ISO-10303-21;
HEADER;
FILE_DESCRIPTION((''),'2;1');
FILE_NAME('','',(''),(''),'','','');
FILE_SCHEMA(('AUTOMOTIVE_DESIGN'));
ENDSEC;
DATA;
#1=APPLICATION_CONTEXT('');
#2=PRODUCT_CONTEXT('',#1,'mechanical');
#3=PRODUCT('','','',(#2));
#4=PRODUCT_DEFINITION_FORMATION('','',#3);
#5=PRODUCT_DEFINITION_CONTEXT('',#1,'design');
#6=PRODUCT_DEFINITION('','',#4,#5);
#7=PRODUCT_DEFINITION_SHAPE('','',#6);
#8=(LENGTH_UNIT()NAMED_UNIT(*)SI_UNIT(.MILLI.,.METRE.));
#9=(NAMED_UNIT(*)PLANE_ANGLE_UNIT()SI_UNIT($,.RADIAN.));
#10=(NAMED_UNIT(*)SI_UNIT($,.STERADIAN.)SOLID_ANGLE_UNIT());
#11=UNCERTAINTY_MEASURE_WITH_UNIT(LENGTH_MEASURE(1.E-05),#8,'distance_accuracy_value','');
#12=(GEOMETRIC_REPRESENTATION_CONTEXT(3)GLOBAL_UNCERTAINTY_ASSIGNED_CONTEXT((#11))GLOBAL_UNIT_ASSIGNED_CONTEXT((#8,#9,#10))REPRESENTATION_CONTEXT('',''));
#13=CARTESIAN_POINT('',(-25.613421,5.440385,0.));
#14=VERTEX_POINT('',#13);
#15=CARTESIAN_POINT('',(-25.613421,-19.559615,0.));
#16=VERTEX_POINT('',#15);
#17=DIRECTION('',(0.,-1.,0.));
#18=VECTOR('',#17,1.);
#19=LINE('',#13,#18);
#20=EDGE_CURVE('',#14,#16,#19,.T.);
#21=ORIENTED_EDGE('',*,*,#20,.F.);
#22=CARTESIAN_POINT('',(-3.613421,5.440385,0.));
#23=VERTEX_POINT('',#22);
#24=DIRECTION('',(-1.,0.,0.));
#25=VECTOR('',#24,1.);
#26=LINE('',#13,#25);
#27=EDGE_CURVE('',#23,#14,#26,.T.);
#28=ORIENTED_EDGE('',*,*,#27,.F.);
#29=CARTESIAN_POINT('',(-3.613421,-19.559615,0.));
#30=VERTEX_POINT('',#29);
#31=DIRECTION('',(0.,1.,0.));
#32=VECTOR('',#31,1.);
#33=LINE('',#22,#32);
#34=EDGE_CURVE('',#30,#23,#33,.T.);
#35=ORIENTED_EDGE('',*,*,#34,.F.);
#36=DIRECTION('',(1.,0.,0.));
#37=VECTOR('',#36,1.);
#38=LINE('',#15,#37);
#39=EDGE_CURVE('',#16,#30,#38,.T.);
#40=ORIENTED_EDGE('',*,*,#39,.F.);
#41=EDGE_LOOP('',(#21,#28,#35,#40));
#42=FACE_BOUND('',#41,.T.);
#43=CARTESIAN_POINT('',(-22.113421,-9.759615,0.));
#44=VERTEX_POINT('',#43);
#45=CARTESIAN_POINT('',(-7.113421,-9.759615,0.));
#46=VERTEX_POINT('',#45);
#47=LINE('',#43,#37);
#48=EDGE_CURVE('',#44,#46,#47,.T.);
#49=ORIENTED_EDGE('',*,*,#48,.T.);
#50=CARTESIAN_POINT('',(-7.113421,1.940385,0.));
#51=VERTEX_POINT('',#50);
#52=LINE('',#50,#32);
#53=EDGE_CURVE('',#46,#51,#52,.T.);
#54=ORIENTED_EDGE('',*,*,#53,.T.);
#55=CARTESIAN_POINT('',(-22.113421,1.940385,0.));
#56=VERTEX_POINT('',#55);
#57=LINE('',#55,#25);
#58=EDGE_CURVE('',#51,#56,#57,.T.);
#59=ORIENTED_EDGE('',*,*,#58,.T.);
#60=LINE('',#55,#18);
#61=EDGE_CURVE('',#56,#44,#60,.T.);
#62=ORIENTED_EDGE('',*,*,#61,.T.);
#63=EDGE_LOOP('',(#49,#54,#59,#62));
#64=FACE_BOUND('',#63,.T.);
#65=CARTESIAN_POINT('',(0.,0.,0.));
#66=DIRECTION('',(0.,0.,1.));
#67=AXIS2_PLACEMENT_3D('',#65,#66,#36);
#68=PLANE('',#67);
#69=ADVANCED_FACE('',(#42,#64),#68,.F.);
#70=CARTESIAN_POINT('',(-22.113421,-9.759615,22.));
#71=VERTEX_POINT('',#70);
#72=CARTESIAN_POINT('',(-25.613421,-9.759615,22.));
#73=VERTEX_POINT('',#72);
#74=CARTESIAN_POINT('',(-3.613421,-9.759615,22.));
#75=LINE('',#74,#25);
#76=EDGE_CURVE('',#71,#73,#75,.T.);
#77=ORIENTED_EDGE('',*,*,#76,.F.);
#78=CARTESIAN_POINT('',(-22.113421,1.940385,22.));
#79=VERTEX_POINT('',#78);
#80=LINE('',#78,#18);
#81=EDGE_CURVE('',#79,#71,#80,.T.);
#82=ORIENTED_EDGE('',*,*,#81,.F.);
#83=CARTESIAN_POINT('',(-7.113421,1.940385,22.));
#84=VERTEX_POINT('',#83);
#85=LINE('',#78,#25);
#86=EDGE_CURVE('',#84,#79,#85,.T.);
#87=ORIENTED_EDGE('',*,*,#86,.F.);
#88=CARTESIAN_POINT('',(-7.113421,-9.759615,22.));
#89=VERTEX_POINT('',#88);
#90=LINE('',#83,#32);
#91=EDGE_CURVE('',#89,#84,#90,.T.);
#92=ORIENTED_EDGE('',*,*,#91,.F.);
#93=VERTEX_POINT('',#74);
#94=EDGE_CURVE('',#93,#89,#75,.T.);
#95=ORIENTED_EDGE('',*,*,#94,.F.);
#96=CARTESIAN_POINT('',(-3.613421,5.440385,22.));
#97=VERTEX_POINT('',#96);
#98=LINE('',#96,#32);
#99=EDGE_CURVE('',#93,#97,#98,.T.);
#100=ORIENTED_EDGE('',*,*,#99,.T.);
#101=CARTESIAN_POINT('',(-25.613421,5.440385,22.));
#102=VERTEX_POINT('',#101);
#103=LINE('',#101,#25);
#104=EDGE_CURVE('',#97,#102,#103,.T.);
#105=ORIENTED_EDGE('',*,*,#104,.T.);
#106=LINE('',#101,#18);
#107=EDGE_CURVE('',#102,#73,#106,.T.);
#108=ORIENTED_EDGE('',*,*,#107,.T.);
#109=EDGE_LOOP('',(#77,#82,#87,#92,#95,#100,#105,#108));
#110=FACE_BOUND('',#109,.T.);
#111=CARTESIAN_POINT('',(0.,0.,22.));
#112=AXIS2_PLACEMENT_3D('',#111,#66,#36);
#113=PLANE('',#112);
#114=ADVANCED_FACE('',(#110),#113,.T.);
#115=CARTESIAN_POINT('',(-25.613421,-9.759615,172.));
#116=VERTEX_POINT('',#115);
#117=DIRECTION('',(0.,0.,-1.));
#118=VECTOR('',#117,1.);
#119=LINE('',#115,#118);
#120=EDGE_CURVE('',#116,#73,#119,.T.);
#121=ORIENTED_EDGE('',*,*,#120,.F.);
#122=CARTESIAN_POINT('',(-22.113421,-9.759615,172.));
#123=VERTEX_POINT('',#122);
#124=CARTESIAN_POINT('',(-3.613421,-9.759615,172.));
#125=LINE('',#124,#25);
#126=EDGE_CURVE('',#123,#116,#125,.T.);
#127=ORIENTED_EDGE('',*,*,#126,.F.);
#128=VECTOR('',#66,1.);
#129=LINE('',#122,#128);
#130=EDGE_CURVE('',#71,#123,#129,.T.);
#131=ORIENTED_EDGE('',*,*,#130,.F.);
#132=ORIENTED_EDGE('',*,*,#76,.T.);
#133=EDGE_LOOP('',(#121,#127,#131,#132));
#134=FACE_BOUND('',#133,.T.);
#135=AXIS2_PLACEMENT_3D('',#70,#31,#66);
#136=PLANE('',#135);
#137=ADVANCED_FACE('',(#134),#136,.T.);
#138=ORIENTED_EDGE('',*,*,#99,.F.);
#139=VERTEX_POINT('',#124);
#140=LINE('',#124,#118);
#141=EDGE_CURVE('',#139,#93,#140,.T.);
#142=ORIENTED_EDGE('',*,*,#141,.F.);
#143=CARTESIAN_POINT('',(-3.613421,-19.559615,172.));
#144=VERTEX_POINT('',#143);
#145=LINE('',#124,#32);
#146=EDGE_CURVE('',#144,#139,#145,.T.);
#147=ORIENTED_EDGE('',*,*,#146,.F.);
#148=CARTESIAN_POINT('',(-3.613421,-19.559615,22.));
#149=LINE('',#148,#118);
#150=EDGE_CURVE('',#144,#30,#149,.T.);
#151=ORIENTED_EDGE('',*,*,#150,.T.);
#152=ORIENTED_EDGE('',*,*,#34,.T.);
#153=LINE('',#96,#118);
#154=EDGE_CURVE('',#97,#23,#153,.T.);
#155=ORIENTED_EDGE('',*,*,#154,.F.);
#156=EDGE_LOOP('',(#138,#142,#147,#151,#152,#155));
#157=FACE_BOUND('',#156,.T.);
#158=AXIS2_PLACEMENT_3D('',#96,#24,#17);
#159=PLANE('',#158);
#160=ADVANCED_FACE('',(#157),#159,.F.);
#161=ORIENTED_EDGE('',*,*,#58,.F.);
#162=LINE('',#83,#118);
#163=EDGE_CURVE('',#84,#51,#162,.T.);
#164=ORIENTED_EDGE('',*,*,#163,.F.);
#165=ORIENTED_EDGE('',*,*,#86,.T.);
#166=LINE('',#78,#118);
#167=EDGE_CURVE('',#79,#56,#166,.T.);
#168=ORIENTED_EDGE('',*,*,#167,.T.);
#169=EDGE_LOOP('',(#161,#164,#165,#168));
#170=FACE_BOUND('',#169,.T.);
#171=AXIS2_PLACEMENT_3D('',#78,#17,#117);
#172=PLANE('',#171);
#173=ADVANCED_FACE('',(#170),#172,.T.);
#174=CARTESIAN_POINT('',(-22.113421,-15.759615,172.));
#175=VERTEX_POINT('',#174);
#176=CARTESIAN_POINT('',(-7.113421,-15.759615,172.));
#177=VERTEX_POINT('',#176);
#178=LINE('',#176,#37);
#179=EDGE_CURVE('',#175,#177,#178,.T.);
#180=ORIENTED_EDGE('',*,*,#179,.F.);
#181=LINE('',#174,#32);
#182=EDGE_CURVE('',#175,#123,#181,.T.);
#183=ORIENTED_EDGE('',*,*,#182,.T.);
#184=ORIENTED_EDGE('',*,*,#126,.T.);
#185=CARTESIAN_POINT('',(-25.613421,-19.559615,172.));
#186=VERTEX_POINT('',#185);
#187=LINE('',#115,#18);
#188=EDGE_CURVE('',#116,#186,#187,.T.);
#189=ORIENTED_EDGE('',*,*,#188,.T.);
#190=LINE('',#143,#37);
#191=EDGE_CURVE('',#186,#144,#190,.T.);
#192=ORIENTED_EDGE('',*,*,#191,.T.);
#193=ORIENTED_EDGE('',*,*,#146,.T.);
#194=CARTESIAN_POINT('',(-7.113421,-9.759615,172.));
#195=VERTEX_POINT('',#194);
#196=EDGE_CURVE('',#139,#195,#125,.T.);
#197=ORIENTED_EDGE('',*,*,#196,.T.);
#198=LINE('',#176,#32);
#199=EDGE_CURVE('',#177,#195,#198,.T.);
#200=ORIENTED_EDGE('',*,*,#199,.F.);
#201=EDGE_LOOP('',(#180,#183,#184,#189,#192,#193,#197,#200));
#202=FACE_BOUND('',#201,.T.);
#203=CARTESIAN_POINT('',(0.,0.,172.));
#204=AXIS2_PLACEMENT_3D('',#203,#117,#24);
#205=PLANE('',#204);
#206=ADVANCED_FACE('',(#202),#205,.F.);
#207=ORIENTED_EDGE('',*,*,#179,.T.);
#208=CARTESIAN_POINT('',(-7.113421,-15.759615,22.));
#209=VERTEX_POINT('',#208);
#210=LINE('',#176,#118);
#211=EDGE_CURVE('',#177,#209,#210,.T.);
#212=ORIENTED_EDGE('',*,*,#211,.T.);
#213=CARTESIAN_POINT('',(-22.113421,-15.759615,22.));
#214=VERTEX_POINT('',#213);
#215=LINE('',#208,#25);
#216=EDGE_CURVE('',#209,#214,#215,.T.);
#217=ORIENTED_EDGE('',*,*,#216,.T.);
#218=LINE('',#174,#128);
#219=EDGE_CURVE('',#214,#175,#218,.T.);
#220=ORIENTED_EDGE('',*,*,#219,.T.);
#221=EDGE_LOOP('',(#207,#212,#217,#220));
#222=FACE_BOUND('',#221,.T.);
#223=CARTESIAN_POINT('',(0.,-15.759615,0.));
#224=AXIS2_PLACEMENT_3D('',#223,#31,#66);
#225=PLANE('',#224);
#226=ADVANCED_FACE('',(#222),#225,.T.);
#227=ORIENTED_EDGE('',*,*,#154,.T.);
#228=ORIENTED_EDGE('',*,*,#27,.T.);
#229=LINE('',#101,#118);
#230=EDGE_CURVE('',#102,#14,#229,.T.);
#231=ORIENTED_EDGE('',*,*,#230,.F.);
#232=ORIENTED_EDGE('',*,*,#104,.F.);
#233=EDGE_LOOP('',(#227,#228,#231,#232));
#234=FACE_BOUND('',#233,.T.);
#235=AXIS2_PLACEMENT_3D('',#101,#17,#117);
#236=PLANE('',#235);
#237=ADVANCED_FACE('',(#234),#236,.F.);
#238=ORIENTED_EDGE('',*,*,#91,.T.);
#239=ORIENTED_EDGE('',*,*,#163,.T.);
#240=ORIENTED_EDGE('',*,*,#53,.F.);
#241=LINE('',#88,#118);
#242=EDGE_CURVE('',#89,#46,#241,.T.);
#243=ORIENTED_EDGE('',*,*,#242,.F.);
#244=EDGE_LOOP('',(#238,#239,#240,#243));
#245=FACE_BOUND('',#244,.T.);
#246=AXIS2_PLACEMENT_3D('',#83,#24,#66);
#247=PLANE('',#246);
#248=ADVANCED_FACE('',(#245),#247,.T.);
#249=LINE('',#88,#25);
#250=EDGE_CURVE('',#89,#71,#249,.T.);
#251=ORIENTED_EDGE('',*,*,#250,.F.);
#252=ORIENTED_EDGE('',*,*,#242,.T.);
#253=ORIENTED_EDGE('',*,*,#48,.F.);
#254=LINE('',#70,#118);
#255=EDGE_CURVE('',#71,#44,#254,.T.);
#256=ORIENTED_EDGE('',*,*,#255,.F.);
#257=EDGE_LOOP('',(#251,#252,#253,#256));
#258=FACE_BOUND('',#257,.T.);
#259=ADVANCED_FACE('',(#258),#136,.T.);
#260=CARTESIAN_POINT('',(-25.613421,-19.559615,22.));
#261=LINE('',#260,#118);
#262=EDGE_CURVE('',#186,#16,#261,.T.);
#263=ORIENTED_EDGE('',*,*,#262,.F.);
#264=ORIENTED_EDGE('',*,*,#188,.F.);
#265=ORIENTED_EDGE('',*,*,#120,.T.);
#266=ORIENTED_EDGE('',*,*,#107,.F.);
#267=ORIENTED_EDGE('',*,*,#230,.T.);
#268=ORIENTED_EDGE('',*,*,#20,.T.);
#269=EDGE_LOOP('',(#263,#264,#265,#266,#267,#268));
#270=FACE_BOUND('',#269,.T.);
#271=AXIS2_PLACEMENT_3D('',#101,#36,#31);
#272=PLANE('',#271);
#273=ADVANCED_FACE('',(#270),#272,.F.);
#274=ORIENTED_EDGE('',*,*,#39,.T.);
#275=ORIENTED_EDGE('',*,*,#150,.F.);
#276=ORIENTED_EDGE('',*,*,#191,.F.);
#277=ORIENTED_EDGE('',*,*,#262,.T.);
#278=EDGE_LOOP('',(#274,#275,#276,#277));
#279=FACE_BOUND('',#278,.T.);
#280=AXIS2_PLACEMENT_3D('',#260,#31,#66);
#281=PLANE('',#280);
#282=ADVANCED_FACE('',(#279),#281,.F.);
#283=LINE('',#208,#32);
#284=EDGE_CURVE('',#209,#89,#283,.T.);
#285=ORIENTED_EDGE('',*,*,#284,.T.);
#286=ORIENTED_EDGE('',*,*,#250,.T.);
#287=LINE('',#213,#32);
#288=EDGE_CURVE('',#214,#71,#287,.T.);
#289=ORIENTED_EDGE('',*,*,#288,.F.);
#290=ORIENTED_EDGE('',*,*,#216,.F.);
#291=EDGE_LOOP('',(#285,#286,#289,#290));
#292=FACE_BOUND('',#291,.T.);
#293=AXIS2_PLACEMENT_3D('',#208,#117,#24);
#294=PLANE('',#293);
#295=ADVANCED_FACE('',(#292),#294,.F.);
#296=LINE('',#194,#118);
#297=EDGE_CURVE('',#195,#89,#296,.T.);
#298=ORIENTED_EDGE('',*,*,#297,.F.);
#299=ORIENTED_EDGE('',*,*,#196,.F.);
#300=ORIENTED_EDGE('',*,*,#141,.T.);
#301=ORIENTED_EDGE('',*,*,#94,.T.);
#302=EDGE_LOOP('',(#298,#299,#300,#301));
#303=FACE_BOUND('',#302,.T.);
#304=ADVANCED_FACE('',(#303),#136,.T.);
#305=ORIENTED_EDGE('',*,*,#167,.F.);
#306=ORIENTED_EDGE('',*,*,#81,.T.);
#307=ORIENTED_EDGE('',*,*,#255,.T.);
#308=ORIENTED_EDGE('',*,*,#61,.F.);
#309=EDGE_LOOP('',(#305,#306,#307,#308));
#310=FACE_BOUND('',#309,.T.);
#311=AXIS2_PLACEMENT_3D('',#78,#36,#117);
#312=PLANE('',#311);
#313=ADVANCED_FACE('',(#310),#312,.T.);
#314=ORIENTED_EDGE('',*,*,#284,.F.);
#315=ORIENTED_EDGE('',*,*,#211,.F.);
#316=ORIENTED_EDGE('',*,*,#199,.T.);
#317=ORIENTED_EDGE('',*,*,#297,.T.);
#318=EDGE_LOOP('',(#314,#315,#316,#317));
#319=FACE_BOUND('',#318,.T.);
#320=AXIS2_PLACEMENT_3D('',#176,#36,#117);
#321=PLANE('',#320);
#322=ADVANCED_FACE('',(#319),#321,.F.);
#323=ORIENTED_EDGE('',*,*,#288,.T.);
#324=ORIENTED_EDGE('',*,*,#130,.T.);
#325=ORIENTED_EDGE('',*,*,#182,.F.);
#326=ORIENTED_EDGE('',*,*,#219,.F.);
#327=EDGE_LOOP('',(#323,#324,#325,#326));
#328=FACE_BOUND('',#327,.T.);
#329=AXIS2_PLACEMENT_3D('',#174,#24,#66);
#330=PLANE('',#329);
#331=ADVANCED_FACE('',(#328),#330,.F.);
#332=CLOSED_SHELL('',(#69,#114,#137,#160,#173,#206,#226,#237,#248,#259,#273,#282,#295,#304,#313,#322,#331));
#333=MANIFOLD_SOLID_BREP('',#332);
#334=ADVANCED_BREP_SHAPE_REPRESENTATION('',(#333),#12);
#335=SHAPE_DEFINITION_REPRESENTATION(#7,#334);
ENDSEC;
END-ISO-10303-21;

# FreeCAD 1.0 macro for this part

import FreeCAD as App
import Part
import Sketcher

V = App.Vector


def add_polygon(sketch, points):
    """Adds a closed chain of lines whose ends are joined by coincident constraints."""
    first, n = sketch.GeometryCount, len(points)
    for a, b in zip(points, points[1:] + points[:1]):
        sketch.addGeometry(Part.LineSegment(App.Vector(*a, 0), App.Vector(*b, 0)), False)
    for i in range(n):
        sketch.addConstraint(Sketcher.Constraint("Coincident", first + i, 2, first + (i + 1) % n, 1))

doc = App.newDocument("Part")
params = doc.addObject("Spreadsheet::Sheet", "Params")
for row, (alias, value) in enumerate([
    ("sketch1_width", "22 mm"),
    ("sketch1_width2", "15 mm"),
    ("sketch1_height", "25 mm"),
    ("sketch1_height2", "11.7 mm"),
    ("pad1_length", "22 mm"),
    ("sketch2_width", "22 mm"),
    ("sketch2_height", "9.8 mm"),
    ("pad2_length", "150 mm"),
    ("sketch3_width", "15 mm"),
    ("sketch3_height", "150 mm"),
    ("pocket1_length", "6 mm"),
], start=1):
    params.set(f"A{row}", alias)
    params.set(f"B{row}", "=" + value)
    params.setAlias(f"B{row}", alias)

body = doc.addObject("PartDesign::Body", "Body")

# Sketch on XY plane
sketch1 = doc.addObject("Sketcher::SketchObject", "Sketch")
body.addObject(sketch1)
sketch1.AttachmentSupport = (doc.XY_Plane, [""])
sketch1.MapMode = "FlatFace"
add_polygon(sketch1, [(-26, 5), (-26, -20), (-4, -20), (-4, 5)])  # lines 0-3
add_polygon(sketch1, [(-7, -10), (-22, -10), (-22, 2), (-7, 2)])  # lines 4-7
sketch1.addConstraint([
    Sketcher.Constraint("Vertical", 0),
    Sketcher.Constraint("Horizontal", 1),
    Sketcher.Constraint("Vertical", 2),
    Sketcher.Constraint("Horizontal", 3),
    Sketcher.Constraint("Horizontal", 4),
    Sketcher.Constraint("Vertical", 5),
    Sketcher.Constraint("Horizontal", 6),
    Sketcher.Constraint("Vertical", 7),
    Sketcher.Constraint("DistanceX", 1, 1, 1, 2, 22.0),
    Sketcher.Constraint("DistanceX", 4, 2, 4, 1, 15.0),
    Sketcher.Constraint("DistanceY", 0, 2, 0, 1, 25.0),
    Sketcher.Constraint("DistanceY", 5, 1, 5, 2, 11.7),
    Sketcher.Constraint("DistanceX", 0, 2, 4, 2, 3.5),
    Sketcher.Constraint("DistanceY", 0, 2, 4, 2, 9.8),
    Sketcher.Constraint("DistanceX", 0, 2, -1, 1, 25.613421),
    Sketcher.Constraint("DistanceY", 0, 2, -1, 1, 19.559615),
])
sketch1.setExpression("Constraints[16]", "Params.sketch1_width")
sketch1.setExpression("Constraints[17]", "Params.sketch1_width2")
sketch1.setExpression("Constraints[18]", "Params.sketch1_height")
sketch1.setExpression("Constraints[19]", "Params.sketch1_height2")
pad1 = doc.addObject("PartDesign::Pad", "Pad")
body.addObject(pad1)
pad1.Profile = sketch1
pad1.setExpression("Length", "Params.pad1_length")

# Sketch on XY plane
sketch2 = doc.addObject("Sketcher::SketchObject", "Sketch001")
body.addObject(sketch2)
sketch2.AttachmentSupport = (doc.XY_Plane, [""])
sketch2.MapMode = "FlatFace"
sketch2.AttachmentOffset = App.Placement(V(0, 0, 22), App.Rotation())
add_polygon(sketch2, [(-26, -10), (-26, -20), (-4, -20), (-4, -10)])  # lines 0-3
sketch2.addConstraint([
    Sketcher.Constraint("Vertical", 0),
    Sketcher.Constraint("Horizontal", 1),
    Sketcher.Constraint("Vertical", 2),
    Sketcher.Constraint("Horizontal", 3),
    Sketcher.Constraint("DistanceX", 1, 1, 1, 2, 22.0),
    Sketcher.Constraint("DistanceY", 0, 2, 0, 1, 9.8),
    Sketcher.Constraint("DistanceX", 0, 2, -1, 1, 25.613421),
    Sketcher.Constraint("DistanceY", 0, 2, -1, 1, 19.559615),
])
sketch2.setExpression("Constraints[8]", "Params.sketch2_width")
sketch2.setExpression("Constraints[9]", "Params.sketch2_height")
pad2 = doc.addObject("PartDesign::Pad", "Pad001")
body.addObject(pad2)
pad2.Profile = sketch2
pad2.setExpression("Length", "Params.pad2_length")

# Sketch on XZ plane
sketch3 = doc.addObject("Sketcher::SketchObject", "Sketch002")
body.addObject(sketch3)
sketch3.AttachmentSupport = (doc.XZ_Plane, [""])
sketch3.MapMode = "FlatFace"
sketch3.AttachmentOffset = App.Placement(V(0, 0, 9.759615), App.Rotation())
add_polygon(sketch3, [(-22, 22), (-22, 172), (-7, 172), (-7, 22)])  # lines 0-3
sketch3.addConstraint([
    Sketcher.Constraint("Vertical", 0),
    Sketcher.Constraint("Horizontal", 1),
    Sketcher.Constraint("Vertical", 2),
    Sketcher.Constraint("Horizontal", 3),
    Sketcher.Constraint("DistanceX", 1, 1, 1, 2, 15.0),
    Sketcher.Constraint("DistanceY", 0, 1, 0, 2, 150.0),
    Sketcher.Constraint("DistanceY", -1, 1, 0, 2, 172.0),
    Sketcher.Constraint("DistanceX", 0, 2, -1, 1, 22.113421),
])
sketch3.setExpression("Constraints[8]", "Params.sketch3_width")
sketch3.setExpression("Constraints[9]", "Params.sketch3_height")
pocket1 = doc.addObject("PartDesign::Pocket", "Pocket")
body.addObject(pocket1)
pocket1.Profile = sketch3
pocket1.setExpression("Length", "Params.pocket1_length")
pocket1.Reversed = True

doc.recompute()
